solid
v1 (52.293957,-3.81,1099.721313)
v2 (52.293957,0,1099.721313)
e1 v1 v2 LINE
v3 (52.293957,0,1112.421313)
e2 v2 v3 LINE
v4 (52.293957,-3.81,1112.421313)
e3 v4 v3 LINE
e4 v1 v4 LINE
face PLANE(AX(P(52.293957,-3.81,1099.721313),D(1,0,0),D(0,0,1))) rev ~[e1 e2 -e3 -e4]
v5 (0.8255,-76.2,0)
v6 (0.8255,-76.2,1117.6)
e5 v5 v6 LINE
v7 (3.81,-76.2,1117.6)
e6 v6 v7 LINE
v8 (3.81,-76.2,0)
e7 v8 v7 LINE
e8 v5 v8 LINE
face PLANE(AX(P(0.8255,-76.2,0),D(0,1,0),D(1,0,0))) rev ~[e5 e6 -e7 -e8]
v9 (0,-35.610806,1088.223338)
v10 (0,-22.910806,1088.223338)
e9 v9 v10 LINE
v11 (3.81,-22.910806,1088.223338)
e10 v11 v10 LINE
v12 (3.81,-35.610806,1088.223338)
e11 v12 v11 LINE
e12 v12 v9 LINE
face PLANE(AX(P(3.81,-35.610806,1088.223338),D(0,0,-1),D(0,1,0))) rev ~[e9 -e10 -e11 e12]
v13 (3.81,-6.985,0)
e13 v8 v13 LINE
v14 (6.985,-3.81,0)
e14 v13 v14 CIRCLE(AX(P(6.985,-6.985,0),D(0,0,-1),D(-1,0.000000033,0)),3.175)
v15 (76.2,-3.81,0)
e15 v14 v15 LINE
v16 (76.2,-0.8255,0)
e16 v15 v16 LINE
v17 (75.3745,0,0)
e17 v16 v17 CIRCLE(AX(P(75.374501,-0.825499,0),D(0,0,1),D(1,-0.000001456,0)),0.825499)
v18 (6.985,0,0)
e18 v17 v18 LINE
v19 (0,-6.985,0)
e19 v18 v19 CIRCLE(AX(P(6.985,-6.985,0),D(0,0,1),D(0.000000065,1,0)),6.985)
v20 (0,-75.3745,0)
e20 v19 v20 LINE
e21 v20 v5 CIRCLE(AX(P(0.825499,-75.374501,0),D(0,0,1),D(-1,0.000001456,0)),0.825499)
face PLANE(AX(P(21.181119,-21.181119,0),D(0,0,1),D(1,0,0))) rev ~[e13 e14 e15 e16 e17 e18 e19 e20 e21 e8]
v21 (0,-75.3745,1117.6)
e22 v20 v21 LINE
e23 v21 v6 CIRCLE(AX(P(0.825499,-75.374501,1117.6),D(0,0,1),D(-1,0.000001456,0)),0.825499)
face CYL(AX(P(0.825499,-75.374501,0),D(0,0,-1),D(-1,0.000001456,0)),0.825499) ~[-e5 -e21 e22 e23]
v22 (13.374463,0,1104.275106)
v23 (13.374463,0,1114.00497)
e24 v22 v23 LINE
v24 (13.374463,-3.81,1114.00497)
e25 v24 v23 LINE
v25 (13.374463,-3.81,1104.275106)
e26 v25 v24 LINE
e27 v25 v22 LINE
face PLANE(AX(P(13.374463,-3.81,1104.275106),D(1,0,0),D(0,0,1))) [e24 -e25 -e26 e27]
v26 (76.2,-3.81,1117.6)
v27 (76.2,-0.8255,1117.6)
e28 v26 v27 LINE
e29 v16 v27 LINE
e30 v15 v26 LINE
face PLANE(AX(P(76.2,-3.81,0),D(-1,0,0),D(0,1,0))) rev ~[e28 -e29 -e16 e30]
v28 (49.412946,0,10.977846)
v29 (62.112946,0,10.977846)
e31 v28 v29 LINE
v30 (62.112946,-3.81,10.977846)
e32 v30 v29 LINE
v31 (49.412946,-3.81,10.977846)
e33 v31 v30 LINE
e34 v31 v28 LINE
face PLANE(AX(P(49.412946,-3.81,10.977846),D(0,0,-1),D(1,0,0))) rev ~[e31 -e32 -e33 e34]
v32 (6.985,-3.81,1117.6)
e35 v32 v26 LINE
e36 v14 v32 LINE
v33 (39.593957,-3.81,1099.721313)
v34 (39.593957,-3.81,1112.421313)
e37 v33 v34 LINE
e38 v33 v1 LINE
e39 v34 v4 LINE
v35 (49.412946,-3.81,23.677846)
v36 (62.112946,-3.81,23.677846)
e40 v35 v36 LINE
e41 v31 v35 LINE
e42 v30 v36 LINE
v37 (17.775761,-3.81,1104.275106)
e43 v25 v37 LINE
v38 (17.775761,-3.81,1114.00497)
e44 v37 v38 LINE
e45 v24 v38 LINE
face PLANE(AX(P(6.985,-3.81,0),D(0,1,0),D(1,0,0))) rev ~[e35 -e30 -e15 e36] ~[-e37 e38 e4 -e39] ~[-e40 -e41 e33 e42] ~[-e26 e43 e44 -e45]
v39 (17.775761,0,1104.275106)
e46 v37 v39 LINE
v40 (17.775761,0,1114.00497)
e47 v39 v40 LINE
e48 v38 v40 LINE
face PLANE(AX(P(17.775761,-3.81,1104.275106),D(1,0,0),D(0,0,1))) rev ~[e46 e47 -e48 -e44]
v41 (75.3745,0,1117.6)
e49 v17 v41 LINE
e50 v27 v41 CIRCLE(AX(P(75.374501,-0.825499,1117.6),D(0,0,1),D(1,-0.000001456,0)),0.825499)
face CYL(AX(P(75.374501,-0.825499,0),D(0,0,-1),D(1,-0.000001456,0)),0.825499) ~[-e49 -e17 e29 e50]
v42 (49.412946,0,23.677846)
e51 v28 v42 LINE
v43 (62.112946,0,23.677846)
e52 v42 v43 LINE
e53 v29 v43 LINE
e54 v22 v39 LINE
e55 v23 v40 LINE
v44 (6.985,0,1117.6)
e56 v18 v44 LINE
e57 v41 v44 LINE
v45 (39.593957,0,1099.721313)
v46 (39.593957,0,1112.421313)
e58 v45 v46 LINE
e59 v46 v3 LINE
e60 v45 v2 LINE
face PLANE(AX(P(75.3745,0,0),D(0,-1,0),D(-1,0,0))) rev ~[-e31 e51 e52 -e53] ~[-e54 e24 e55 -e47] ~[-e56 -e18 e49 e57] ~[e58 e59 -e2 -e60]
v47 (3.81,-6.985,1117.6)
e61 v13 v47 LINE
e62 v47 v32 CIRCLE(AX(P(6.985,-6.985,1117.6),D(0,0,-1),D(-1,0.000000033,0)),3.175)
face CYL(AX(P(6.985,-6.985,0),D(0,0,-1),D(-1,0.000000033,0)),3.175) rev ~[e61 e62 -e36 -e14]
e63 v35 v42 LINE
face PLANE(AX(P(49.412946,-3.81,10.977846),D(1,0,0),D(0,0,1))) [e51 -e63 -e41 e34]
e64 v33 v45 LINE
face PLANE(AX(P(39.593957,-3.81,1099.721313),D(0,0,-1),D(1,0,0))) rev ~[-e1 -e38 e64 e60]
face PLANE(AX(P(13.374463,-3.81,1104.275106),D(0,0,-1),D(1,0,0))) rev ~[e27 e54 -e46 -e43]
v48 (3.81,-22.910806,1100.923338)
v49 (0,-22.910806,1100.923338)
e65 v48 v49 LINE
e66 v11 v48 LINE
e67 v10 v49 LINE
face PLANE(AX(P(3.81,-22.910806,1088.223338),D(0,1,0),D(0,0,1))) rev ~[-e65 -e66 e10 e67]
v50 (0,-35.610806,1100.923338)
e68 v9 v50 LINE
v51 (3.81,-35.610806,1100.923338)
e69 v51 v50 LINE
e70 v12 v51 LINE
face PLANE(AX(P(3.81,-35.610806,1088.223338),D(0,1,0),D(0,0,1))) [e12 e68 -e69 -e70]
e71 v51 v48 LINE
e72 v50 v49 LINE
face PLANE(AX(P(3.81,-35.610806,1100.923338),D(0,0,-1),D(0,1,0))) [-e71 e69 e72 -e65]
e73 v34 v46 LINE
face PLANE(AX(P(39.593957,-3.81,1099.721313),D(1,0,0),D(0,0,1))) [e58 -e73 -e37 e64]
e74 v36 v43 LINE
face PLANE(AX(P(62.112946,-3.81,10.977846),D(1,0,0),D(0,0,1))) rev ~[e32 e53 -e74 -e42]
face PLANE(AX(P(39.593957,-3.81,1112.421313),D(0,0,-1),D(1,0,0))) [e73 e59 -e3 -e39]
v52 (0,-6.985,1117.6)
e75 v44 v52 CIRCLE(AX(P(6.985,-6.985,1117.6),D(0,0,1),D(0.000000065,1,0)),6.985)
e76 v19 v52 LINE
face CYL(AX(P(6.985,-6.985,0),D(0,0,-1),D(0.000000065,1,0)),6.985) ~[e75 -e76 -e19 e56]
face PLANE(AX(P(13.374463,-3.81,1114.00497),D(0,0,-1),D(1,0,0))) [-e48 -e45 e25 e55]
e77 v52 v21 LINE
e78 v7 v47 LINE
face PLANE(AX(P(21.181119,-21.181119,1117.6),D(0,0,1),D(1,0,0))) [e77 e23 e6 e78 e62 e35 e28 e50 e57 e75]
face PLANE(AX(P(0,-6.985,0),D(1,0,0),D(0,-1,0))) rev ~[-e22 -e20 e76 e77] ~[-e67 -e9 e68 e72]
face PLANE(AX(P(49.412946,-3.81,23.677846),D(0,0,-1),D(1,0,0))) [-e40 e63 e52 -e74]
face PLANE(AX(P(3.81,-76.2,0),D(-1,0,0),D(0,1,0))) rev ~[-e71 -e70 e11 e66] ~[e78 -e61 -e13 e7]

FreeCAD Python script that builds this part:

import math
import FreeCAD as App
import Part
import Sketcher
from FreeCAD import Vector
Q = App.Units.Quantity


def add_polygon(sketch, points):
    """Adds a closed chain of lines whose ends are joined by coincident constraints."""
    first, n = sketch.GeometryCount, len(points)
    for a, b in zip(points, points[1:] + points[:1]):
        sketch.addGeometry(Part.LineSegment(App.Vector(*a, 0), App.Vector(*b, 0)), False)
    for i in range(n):
        sketch.addConstraint(Sketcher.Constraint("Coincident", first + i, 2, first + (i + 1) % n, 1))

doc = App.newDocument("Part")
body = doc.addObject("PartDesign::Body", "Body")

sketch1 = body.newObject("Sketcher::SketchObject", "Sketch")
sketch1.AttachmentSupport = (doc.getObject("XY_Plane"), [""])
sketch1.MapMode = "FlatFace"
sketch1.addGeometry(Part.ArcOfCircle(Part.Circle(Vector(0.8, -75.4, 0), Vector(0, 0, 1), 0.8), math.radians(180), math.radians(270)), False)
sketch1.addGeometry(Part.LineSegment(Vector(0.8, -76.2, 0), Vector(3.8, -76.2, 0)), False)
sketch1.addGeometry(Part.LineSegment(Vector(3.8, -76.2, 0), Vector(3.8, -7, 0)), False)
sketch1.addGeometry(Part.ArcOfCircle(Part.Circle(Vector(7, -7, 0), Vector(0, 0, 1), 3.2), math.radians(90), math.radians(180)), False)
sketch1.addGeometry(Part.LineSegment(Vector(7, -3.8, 0), Vector(76.2, -3.8, 0)), False)
sketch1.addGeometry(Part.LineSegment(Vector(76.2, -3.8, 0), Vector(76.2, -0.8, 0)), False)
sketch1.addGeometry(Part.ArcOfCircle(Part.Circle(Vector(75.4, -0.8, 0), Vector(0, 0, 1), 0.8), math.radians(0), math.radians(90)), False)
sketch1.addGeometry(Part.LineSegment(Vector(75.4, 0, 0), Vector(7, 0, 0)), False)
sketch1.addGeometry(Part.ArcOfCircle(Part.Circle(Vector(7, -7, 0), Vector(0, 0, 1), 7), math.radians(90), math.radians(180)), False)
sketch1.addGeometry(Part.LineSegment(Vector(0, -7, 0), Vector(0, -75.4, 0)), False)
sketch1.addConstraint(Sketcher.Constraint("Tangent", 0, 2, 1, 1))
sketch1.addConstraint(Sketcher.Constraint("Coincident", 1, 2, 2, 1))
sketch1.addConstraint(Sketcher.Constraint("Tangent", 2, 2, 3, 2))
sketch1.addConstraint(Sketcher.Constraint("Tangent", 3, 1, 4, 1))
sketch1.addConstraint(Sketcher.Constraint("Coincident", 4, 2, 5, 1))
sketch1.addConstraint(Sketcher.Constraint("Tangent", 5, 2, 6, 1))
sketch1.addConstraint(Sketcher.Constraint("Tangent", 6, 2, 7, 1))
sketch1.addConstraint(Sketcher.Constraint("Tangent", 7, 2, 8, 1))
sketch1.addConstraint(Sketcher.Constraint("Tangent", 8, 2, 9, 1))
sketch1.addConstraint(Sketcher.Constraint("Tangent", 9, 2, 0, 1))
sketch1.addConstraint(Sketcher.Constraint("Horizontal", 1))
sketch1.addConstraint(Sketcher.Constraint("Vertical", 2))
sketch1.addConstraint(Sketcher.Constraint("Horizontal", 4))
sketch1.addConstraint(Sketcher.Constraint("Vertical", 5))
sketch1.addConstraint(Sketcher.Constraint("Horizontal", 7))
sketch1.addConstraint(Sketcher.Constraint("Vertical", 9))
sketch1.addConstraint(Sketcher.Constraint("Coincident", 8, 3, 3, 3))
sketch1.addConstraint(Sketcher.Constraint("Equal", 0, 6))
sketch1.addConstraint(Sketcher.Constraint("PointOnObject", 6, 2, -1))
sketch1.addConstraint(Sketcher.Constraint("PointOnObject", 8, 2, -2))
sketch1.addConstraint(Sketcher.Constraint("Equal", 4, 2))
sketch1.addConstraint(Sketcher.Constraint("DistanceY", 0, 2, -1, 1, Q("3 in")))
sketch1.addConstraint(Sketcher.Constraint("Radius", 3, Q("0.125 in")))
sketch1.addConstraint(Sketcher.Constraint("Radius", 8, Q("0.275 in")))
sketch1.addConstraint(Sketcher.Constraint("Radius", 0, Q("0.0325 in")))
pad1 = body.newObject("PartDesign::Pad", "Pad")
pad1.Profile = sketch1
pad1.Length = Q("44 in")

sketch2 = body.newObject("Sketcher::SketchObject", "Sketch001")
sketch2.AttachmentSupport = (doc.getObject("XZ_Plane"), [""])
sketch2.MapMode = "FlatFace"
sketch2.AttachmentOffset = App.Placement(Vector(0, 0, 0.15 * 25.4), App.Rotation())
add_polygon(sketch2, [(7, 1118), (7, 0), (76, 0), (76, 1118)])
sketch2.addConstraint(Sketcher.Constraint("Vertical", 0))
sketch2.addConstraint(Sketcher.Constraint("Horizontal", 1))
sketch2.addConstraint(Sketcher.Constraint("Vertical", 2))
sketch2.addConstraint(Sketcher.Constraint("Horizontal", 3))
sketch2.addConstraint(Sketcher.Constraint("PointOnObject", 0, 2, -1))
sketch2.addConstraint(Sketcher.Constraint("DistanceY", 0, 2, 0, 1, Q("44 in")))
sketch2.addConstraint(Sketcher.Constraint("DistanceX", -1, 1, 1, 2, Q("3 in")))
sketch2.addConstraint(Sketcher.Constraint("DistanceX", 1, 1, 1, 2, Q("2.725 in")))
pocket1 = body.newObject("PartDesign::Pocket", "Pocket")
pocket1.Profile = sketch2
pocket1.Length = Q("0.5 in")
pocket1.Reversed = True

sketch3 = body.newObject("Sketcher::SketchObject", "Sketch002")
sketch3.AttachmentSupport = (doc.getObject("XZ_Plane"), [""])
sketch3.MapMode = "FlatFace"
sketch3.AttachmentOffset = App.Placement(Vector(0, 0, 0.15 * 25.4), App.Rotation())
add_polygon(sketch3, [(13.4, 1114), (13.4, 1104.3), (17.8, 1104.3), (17.8, 1114)])
add_polygon(sketch3, [(39.6, 1112.4), (39.6, 1099.7), (52.3, 1099.7), (52.3, 1112.4)])
sketch3.addConstraint(Sketcher.Constraint("Vertical", 0))
sketch3.addConstraint(Sketcher.Constraint("Horizontal", 1))
sketch3.addConstraint(Sketcher.Constraint("Vertical", 2))
sketch3.addConstraint(Sketcher.Constraint("Horizontal", 3))
sketch3.addConstraint(Sketcher.Constraint("Vertical", 4))
sketch3.addConstraint(Sketcher.Constraint("Horizontal", 5))
sketch3.addConstraint(Sketcher.Constraint("Vertical", 6))
sketch3.addConstraint(Sketcher.Constraint("Horizontal", 7))
sketch3.addConstraint(Sketcher.Constraint("Equal", 7, 4))
sketch3.addConstraint(Sketcher.Constraint("DistanceX", 5, 1, 5, 2, Q("0.5 in")))
sketch3.addConstraint(Sketcher.Constraint("DistanceX", 1, 1, 1, 2, 4.401298))
sketch3.addConstraint(Sketcher.Constraint("DistanceY", 0, 2, 0, 1, 9.729863))
sketch3.addConstraint(Sketcher.Constraint("DistanceX", -1, 1, 1, 2, 17.775761))
sketch3.addConstraint(Sketcher.Constraint("DistanceY", -1, 1, 2, 2, 1114.00497))
sketch3.addConstraint(Sketcher.Constraint("DistanceX", -1, 1, 4, 2, 39.593957))
sketch3.addConstraint(Sketcher.Constraint("DistanceY", -1, 1, 4, 2, 1099.721313))
pocket2 = body.newObject("PartDesign::Pocket", "Pocket001")
pocket2.Profile = sketch3
pocket2.Type = "ThroughAll"

sketch4 = body.newObject("Sketcher::SketchObject", "Sketch003")
sketch4.AttachmentSupport = (doc.getObject("YZ_Plane"), [""])
sketch4.MapMode = "FlatFace"
sketch4.AttachmentOffset = App.Placement(Vector(0, 0, 0.15 * 25.4), App.Rotation())
add_polygon(sketch4, [(-36, 1101), (-36, 1088), (-23, 1088), (-23, 1101)])
sketch4.addConstraint(Sketcher.Constraint("Vertical", 0))
sketch4.addConstraint(Sketcher.Constraint("Horizontal", 1))
sketch4.addConstraint(Sketcher.Constraint("Vertical", 2))
sketch4.addConstraint(Sketcher.Constraint("Horizontal", 3))
sketch4.addConstraint(Sketcher.Constraint("Equal", 3, 0))
sketch4.addConstraint(Sketcher.Constraint("DistanceX", 1, 1, 1, 2, Q("0.5 in")))
sketch4.addConstraint(Sketcher.Constraint("DistanceY", -1, 1, 0, 2, 1088.223338))
sketch4.addConstraint(Sketcher.Constraint("DistanceX", 0, 2, -1, 1, 35.610806))
pocket3 = body.newObject("PartDesign::Pocket", "Pocket002")
pocket3.Profile = sketch4
pocket3.Type = "ThroughAll"

sketch5 = body.newObject("Sketcher::SketchObject", "Sketch004")
sketch5.AttachmentSupport = (doc.getObject("XZ_Plane"), [""])
sketch5.MapMode = "FlatFace"
sketch5.AttachmentOffset = App.Placement(Vector(0, 0, 0.15 * 25.4), App.Rotation())
add_polygon(sketch5, [(49, 24), (49, 11), (62, 11), (62, 24)])
sketch5.addConstraint(Sketcher.Constraint("Vertical", 0))
sketch5.addConstraint(Sketcher.Constraint("Horizontal", 1))
sketch5.addConstraint(Sketcher.Constraint("Vertical", 2))
sketch5.addConstraint(Sketcher.Constraint("Horizontal", 3))
sketch5.addConstraint(Sketcher.Constraint("Equal", 3, 0))
sketch5.addConstraint(Sketcher.Constraint("DistanceX", 1, 1, 1, 2, Q("0.5 in")))
sketch5.addConstraint(Sketcher.Constraint("DistanceX", -1, 1, 0, 2, 49.412946))
sketch5.addConstraint(Sketcher.Constraint("DistanceY", -1, 1, 0, 2, 10.977846))
pocket4 = body.newObject("PartDesign::Pocket", "Pocket003")
pocket4.Profile = sketch5
pocket4.Type = "ThroughAll"

doc.recompute()
